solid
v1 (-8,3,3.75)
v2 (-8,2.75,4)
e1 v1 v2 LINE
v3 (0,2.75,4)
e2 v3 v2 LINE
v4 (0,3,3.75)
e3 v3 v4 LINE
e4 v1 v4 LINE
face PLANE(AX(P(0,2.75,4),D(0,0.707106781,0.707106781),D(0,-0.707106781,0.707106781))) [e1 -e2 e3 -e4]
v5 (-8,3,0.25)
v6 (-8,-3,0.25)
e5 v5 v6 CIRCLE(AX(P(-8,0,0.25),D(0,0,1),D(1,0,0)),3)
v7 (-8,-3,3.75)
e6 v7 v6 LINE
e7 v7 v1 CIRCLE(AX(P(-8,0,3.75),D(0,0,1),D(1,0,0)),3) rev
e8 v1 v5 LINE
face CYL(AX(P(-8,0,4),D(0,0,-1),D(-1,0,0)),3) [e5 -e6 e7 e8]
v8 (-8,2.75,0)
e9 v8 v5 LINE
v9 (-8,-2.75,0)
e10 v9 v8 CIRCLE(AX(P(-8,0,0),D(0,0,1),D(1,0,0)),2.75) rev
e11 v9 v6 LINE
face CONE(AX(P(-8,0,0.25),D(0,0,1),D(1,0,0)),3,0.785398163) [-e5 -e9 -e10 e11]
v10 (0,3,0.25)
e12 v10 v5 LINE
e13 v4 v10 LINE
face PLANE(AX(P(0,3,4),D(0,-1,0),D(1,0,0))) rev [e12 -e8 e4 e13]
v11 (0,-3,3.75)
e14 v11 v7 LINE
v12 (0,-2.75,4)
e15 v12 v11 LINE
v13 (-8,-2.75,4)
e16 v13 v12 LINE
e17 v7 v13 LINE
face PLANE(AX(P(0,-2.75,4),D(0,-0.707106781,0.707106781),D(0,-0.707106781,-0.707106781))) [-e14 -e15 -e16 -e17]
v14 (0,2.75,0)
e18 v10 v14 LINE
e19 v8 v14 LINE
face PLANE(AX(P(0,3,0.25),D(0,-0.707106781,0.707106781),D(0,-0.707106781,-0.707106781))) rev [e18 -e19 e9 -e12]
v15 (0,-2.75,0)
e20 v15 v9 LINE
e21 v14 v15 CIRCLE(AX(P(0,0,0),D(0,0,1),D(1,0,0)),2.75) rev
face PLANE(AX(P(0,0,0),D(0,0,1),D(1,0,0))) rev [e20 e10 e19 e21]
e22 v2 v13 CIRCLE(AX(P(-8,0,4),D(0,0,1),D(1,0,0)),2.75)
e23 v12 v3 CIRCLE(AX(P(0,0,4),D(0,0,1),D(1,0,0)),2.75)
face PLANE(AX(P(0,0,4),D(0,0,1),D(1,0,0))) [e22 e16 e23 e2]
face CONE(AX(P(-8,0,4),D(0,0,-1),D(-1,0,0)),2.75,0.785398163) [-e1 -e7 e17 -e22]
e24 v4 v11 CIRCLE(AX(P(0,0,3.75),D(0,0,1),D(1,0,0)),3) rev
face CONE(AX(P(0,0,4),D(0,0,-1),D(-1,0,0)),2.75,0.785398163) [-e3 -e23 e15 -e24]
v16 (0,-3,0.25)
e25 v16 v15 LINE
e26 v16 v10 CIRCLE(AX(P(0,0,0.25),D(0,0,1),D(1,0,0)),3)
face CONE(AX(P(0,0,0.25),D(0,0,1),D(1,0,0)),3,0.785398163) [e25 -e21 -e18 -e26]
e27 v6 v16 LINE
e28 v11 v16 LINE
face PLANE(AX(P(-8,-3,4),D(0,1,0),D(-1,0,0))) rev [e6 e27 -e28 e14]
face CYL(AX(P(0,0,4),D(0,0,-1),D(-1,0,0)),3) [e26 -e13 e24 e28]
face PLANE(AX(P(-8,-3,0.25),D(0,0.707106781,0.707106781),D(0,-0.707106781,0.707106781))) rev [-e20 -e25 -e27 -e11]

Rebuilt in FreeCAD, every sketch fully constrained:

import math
import FreeCAD as App
import Part
import Sketcher

V = App.Vector


def edges_at(feature, points):
    """Names of the edges that pass closest to the given points."""
    edges = feature.Shape.Edges
    near = lambda p: min(range(len(edges)), key=lambda i: edges[i].distToShape(Part.Vertex(*p))[0])
    return sorted({f"Edge{near(p) + 1}" for p in points})

doc = App.newDocument("Part")
body = doc.addObject("PartDesign::Body", "Body")

sketch1 = body.newObject("Sketcher::SketchObject", "Sketch")
sketch1.AttachmentSupport = (doc.getObject("XY_Plane"), [""])
sketch1.MapMode = "FlatFace"
sketch1.addGeometry(Part.LineSegment(V(0, 3, 0), V(-8, 3, 0)), False)
sketch1.addGeometry(Part.ArcOfCircle(Part.Circle(V(-8, 0, 0), V(0, 0, 1), 3), math.radians(90), math.radians(270)), False)
sketch1.addGeometry(Part.LineSegment(V(-8, -3, 0), V(0, -3, 0)), False)
sketch1.addGeometry(Part.ArcOfCircle(Part.Circle(V(0, 0, 0), V(0, 0, 1), 3), math.radians(-90), math.radians(90)), False)
sketch1.addConstraint(Sketcher.Constraint("Tangent", 0, 2, 1, 1))
sketch1.addConstraint(Sketcher.Constraint("Tangent", 1, 2, 2, 1))
sketch1.addConstraint(Sketcher.Constraint("Tangent", 2, 2, 3, 1))
sketch1.addConstraint(Sketcher.Constraint("Tangent", 3, 2, 0, 1))
sketch1.addConstraint(Sketcher.Constraint("Horizontal", 0))
sketch1.addConstraint(Sketcher.Constraint("Horizontal", 2))
sketch1.addConstraint(Sketcher.Constraint("Coincident", 3, 3, -1, 1))
sketch1.addConstraint(Sketcher.Constraint("Radius", 1, 3.0))
sketch1.addConstraint(Sketcher.Constraint("DistanceX", 0, 2, 0, 1, 8.0))
pad1 = body.newObject("PartDesign::Pad", "Pad")
pad1.Profile = sketch1
pad1.Length = 4
doc.recompute()

chamfer = body.newObject("PartDesign::Chamfer", "Chamfer")
chamfer.Base = (pad1, edges_at(pad1, [
    (-11, 0, 4),
    (-4, -3, 4),
    (3, 0, 4),
    (-4, -3, 0),
    (-11, 0, 0),
    (-4, 3, 0),
    (3, 0, 0),
    (-4, 3, 4),
]))
chamfer.Size = 0.25

doc.recompute()
